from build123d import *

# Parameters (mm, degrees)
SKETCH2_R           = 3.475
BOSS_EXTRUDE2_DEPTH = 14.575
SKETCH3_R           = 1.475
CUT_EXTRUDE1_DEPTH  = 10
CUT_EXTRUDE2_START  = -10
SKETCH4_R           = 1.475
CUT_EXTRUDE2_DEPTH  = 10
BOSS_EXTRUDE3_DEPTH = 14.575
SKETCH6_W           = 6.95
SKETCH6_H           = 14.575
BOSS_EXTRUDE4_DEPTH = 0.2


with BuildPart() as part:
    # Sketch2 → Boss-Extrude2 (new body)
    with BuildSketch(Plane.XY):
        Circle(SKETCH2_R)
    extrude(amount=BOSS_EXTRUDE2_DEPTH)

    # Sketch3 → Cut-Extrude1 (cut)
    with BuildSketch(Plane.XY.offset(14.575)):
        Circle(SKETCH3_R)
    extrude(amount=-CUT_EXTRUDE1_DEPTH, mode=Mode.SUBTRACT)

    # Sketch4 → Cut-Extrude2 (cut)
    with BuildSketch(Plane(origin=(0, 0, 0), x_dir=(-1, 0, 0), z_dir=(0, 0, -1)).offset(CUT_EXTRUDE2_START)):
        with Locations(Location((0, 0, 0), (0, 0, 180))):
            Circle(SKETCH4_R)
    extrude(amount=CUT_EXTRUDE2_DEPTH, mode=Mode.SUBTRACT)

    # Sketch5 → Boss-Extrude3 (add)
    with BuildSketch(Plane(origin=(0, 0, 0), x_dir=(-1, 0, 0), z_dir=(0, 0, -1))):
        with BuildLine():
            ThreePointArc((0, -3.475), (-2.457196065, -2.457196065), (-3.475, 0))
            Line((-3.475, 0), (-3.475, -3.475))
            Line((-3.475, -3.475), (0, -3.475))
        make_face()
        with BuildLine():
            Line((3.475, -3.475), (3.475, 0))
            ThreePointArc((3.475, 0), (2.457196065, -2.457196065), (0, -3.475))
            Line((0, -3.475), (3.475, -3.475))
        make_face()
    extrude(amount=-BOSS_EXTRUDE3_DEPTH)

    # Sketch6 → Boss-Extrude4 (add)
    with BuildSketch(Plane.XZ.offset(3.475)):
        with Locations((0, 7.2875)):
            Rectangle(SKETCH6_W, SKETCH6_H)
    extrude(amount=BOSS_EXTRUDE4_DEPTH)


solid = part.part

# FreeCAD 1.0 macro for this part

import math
import FreeCAD as App
import Part
import Sketcher
Q = App.Units.Quantity

doc = App.newDocument("Part")
body = doc.addObject("PartDesign::Body", "Body")

# Sketch on XY plane
sketch1 = body.newObject("Sketcher::SketchObject", "Sketch")
sketch1.AttachmentSupport = (doc.getObject("XY_Plane"), [""])
sketch1.MapMode = "FlatFace"
sketch1.addGeometry(Part.Circle(App.Vector(0, 0, 0), App.Vector(0, 0, 1), 3.475), False)
sketch1.addConstraint(Sketcher.Constraint("Coincident", 0, 3, -1, 1))
sketch1.addConstraint(Sketcher.Constraint("Diameter", 0, Q("6.95 mm")))
pad1 = body.newObject("PartDesign::Pad", "Pad")
pad1.Profile = sketch1
pad1.Length = 14.575

# Sketch on XY plane
sketch2 = body.newObject("Sketcher::SketchObject", "Sketch001")
sketch2.AttachmentSupport = (doc.getObject("XY_Plane"), [""])
sketch2.MapMode = "FlatFace"
sketch2.AttachmentOffset = App.Placement(App.Vector(0, 0, 14.575), App.Rotation())
sketch2.addGeometry(Part.Circle(App.Vector(0, 0, 0), App.Vector(0, 0, 1), 1.475), False)
sketch2.addConstraint(Sketcher.Constraint("Coincident", 0, 3, -1, 1))
sketch2.addConstraint(Sketcher.Constraint("Diameter", 0, Q("2.95 mm")))
pocket1 = body.newObject("PartDesign::Pocket", "Pocket")
pocket1.Profile = sketch2
pocket1.Length = 10

# Sketch on XY plane
sketch3 = body.newObject("Sketcher::SketchObject", "Sketch002")
sketch3.AttachmentSupport = (doc.getObject("XY_Plane"), [""])
sketch3.MapMode = "FlatFace"
sketch3.AttachmentOffset = App.Placement(App.Vector(0, 0, 10), App.Rotation())
sketch3.addGeometry(Part.Circle(App.Vector(0, 0, 0), App.Vector(0, 0, 1), 1.475), False)
sketch3.addConstraint(Sketcher.Constraint("Coincident", 0, 3, -1, 1))
sketch3.addConstraint(Sketcher.Constraint("Diameter", 0, Q("2.95 mm")))
pocket2 = body.newObject("PartDesign::Pocket", "Pocket001")
pocket2.Profile = sketch3
pocket2.Length = 10

# Sketch on XY plane
sketch4 = body.newObject("Sketcher::SketchObject", "Sketch003")
sketch4.AttachmentSupport = (doc.getObject("XY_Plane"), [""])
sketch4.MapMode = "FlatFace"
sketch4.addGeometry(Part.ArcOfCircle(Part.Circle(App.Vector(0, 0, 0), App.Vector(0, 0, 1), 3.475), math.radians(-90), math.radians(0)), False)
sketch4.addGeometry(Part.LineSegment(App.Vector(3.475, 0, 0), App.Vector(3.475, -3.475, 0)), False)
sketch4.addGeometry(Part.LineSegment(App.Vector(3.475, -3.475, 0), App.Vector(0, -3.475, 0)), False)
sketch4.addGeometry(Part.LineSegment(App.Vector(-3.475, -3.475, 0), App.Vector(-3.475, 0, 0)), False)
sketch4.addGeometry(Part.ArcOfCircle(Part.Circle(App.Vector(0, 0, 0), App.Vector(0, 0, 1), 3.475), math.radians(180), math.radians(270)), False)
sketch4.addGeometry(Part.LineSegment(App.Vector(0, -3.475, 0), App.Vector(-3.475, -3.475, 0)), False)
sketch4.addConstraint(Sketcher.Constraint("Tangent", 0, 2, 1, 1))
sketch4.addConstraint(Sketcher.Constraint("Coincident", 1, 2, 2, 1))
sketch4.addConstraint(Sketcher.Constraint("Tangent", 2, 2, 0, 1))
sketch4.addConstraint(Sketcher.Constraint("Tangent", 3, 2, 4, 1))
sketch4.addConstraint(Sketcher.Constraint("Tangent", 4, 2, 5, 1))
sketch4.addConstraint(Sketcher.Constraint("Coincident", 5, 2, 3, 1))
sketch4.addConstraint(Sketcher.Constraint("Vertical", 1))
sketch4.addConstraint(Sketcher.Constraint("Horizontal", 2))
sketch4.addConstraint(Sketcher.Constraint("Vertical", 3))
sketch4.addConstraint(Sketcher.Constraint("Horizontal", 5))
sketch4.addConstraint(Sketcher.Constraint("Coincident", 0, 3, -1, 1))
sketch4.addConstraint(Sketcher.Constraint("Coincident", 4, 3, -1, 1))
sketch4.addConstraint(Sketcher.Constraint("Equal", 0, 4))
sketch4.addConstraint(Sketcher.Constraint("Radius", 0, Q("3.475 mm")))
pad2 = body.newObject("PartDesign::Pad", "Pad001")
pad2.Profile = sketch4
pad2.Length = 14.575

# Sketch on XZ plane
sketch5 = body.newObject("Sketcher::SketchObject", "Sketch004")
sketch5.AttachmentSupport = (doc.getObject("XZ_Plane"), [""])
sketch5.MapMode = "FlatFace"
sketch5.AttachmentOffset = App.Placement(App.Vector(0, 0, 3.475), App.Rotation())
sketch5.addGeometry(Part.LineSegment(App.Vector(-3.475, 14.575, 0), App.Vector(-3.475, 0, 0)), False)
sketch5.addGeometry(Part.LineSegment(App.Vector(-3.475, 0, 0), App.Vector(3.475, 0, 0)), False)
sketch5.addGeometry(Part.LineSegment(App.Vector(3.475, 0, 0), App.Vector(3.475, 14.575, 0)), False)
sketch5.addGeometry(Part.LineSegment(App.Vector(3.475, 14.575, 0), App.Vector(-3.475, 14.575, 0)), False)
sketch5.addConstraint(Sketcher.Constraint("Coincident", 0, 2, 1, 1))
sketch5.addConstraint(Sketcher.Constraint("Coincident", 1, 2, 2, 1))
sketch5.addConstraint(Sketcher.Constraint("Coincident", 2, 2, 3, 1))
sketch5.addConstraint(Sketcher.Constraint("Coincident", 3, 2, 0, 1))
sketch5.addConstraint(Sketcher.Constraint("Vertical", 0))
sketch5.addConstraint(Sketcher.Constraint("Horizontal", 1))
sketch5.addConstraint(Sketcher.Constraint("Vertical", 2))
sketch5.addConstraint(Sketcher.Constraint("Horizontal", 3))
sketch5.addConstraint(Sketcher.Constraint("Symmetric", 0, 2, 1, 2, -1, 1))
sketch5.addConstraint(Sketcher.Constraint("DistanceX", 1, 1, 1, 2, Q("6.95 mm")))
sketch5.addConstraint(Sketcher.Constraint("DistanceY", 0, 2, 0, 1, Q("14.575 mm")))
pad3 = body.newObject("PartDesign::Pad", "Pad002")
pad3.Profile = sketch5
pad3.Length = 0.2

doc.recompute()
